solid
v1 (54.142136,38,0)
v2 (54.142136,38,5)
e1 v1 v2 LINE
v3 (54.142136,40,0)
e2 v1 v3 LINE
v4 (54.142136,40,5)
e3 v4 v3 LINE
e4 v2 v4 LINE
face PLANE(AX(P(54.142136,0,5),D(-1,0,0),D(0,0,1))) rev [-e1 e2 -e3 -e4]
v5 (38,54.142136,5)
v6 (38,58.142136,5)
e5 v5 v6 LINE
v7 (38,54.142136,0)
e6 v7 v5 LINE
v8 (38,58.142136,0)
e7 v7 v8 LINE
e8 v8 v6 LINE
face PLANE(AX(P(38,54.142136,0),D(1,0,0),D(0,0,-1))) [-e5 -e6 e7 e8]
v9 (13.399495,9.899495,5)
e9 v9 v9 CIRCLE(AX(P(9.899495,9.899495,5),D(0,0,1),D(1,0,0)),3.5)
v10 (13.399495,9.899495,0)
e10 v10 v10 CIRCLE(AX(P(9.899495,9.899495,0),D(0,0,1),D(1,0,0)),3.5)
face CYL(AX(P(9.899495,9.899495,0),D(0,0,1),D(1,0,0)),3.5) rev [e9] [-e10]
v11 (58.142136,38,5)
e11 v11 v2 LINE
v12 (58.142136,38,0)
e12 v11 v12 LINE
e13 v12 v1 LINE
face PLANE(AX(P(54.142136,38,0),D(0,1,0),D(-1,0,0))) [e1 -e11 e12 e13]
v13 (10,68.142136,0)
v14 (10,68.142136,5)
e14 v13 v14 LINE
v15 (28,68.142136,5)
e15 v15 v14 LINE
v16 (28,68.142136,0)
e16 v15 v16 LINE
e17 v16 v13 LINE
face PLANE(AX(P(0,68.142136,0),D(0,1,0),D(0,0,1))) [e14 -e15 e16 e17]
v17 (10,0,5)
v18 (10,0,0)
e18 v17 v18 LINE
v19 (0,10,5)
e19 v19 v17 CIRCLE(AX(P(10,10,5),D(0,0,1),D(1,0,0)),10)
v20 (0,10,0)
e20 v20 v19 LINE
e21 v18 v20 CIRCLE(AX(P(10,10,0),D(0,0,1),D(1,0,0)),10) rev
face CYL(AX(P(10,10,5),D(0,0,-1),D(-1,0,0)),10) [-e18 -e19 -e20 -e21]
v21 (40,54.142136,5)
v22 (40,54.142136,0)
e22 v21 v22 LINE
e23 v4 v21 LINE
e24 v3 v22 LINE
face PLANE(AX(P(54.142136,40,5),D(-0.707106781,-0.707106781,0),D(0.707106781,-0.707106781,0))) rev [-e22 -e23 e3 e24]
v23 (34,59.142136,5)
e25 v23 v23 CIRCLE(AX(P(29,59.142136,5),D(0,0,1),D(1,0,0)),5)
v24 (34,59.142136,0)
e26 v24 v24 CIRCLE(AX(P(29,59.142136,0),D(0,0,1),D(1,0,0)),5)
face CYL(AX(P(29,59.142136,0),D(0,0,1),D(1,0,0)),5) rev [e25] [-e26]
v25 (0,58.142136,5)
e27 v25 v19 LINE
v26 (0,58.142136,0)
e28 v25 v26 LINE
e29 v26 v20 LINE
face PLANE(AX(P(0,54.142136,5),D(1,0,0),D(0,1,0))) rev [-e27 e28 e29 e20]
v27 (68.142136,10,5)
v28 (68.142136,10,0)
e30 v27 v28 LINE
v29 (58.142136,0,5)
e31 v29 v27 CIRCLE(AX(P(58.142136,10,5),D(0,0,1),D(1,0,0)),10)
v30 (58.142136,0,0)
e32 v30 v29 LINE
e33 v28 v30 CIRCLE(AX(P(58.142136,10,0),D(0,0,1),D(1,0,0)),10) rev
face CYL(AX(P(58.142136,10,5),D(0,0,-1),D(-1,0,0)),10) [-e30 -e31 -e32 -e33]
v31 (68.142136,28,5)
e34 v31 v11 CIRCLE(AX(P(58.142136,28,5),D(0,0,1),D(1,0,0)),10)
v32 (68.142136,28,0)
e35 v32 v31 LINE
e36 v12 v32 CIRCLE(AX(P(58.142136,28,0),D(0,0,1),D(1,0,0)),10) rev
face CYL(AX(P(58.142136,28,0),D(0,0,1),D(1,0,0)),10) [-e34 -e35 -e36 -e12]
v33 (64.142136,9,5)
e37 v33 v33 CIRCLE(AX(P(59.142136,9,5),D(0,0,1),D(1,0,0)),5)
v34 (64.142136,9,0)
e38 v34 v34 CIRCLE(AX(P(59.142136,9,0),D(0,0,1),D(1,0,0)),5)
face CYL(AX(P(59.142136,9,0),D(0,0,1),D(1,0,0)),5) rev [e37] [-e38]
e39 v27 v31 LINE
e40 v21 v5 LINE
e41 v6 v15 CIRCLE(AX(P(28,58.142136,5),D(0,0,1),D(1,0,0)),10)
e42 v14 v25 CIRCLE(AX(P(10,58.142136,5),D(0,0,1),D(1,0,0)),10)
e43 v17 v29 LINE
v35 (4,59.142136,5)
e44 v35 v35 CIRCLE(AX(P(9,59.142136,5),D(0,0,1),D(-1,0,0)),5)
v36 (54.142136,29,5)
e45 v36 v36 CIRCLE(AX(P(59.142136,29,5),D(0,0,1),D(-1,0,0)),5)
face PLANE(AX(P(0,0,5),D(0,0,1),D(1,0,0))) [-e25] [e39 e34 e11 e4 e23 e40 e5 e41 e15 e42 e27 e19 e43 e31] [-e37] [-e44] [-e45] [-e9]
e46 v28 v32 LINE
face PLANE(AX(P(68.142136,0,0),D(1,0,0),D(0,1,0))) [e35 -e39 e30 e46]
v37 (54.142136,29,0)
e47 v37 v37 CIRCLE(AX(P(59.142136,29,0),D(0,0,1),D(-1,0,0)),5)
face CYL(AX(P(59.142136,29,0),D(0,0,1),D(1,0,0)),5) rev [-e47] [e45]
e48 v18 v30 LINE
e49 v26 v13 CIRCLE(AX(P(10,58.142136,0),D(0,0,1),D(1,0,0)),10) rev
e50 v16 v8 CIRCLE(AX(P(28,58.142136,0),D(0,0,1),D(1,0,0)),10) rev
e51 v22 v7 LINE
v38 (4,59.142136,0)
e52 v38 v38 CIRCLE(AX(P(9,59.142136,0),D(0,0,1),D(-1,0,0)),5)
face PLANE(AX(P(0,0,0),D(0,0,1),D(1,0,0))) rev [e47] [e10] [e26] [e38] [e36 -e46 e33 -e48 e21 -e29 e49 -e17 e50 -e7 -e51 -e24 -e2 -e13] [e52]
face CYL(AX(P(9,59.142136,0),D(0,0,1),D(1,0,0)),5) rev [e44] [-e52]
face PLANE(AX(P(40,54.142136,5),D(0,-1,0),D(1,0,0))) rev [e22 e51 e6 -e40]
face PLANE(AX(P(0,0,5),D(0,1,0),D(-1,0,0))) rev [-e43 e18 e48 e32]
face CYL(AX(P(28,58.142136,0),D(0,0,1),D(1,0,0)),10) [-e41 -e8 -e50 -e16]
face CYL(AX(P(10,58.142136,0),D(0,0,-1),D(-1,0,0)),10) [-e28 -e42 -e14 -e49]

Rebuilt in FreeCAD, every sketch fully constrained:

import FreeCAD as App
import Part
import Sketcher

V = App.Vector
Q = App.Units.Quantity


def edges_at(feature, points):
    """Names of the edges that pass closest to the given points."""
    edges = feature.Shape.Edges
    near = lambda p: min(range(len(edges)), key=lambda i: edges[i].distToShape(Part.Vertex(*p))[0])
    return sorted({f"Edge{near(p) + 1}" for p in points})

doc = App.newDocument("Part")
params = doc.addObject("Spreadsheet::Sheet", "Params")
for row, (alias, value) in enumerate([
    ("sketch1_width", "40 mm"),
    ("sketch1_length", "20 mm"),
    ("pad1_length", "5 mm"),
    ("sketch2_width", "38 mm"),
    ("sketch2_width2", "14 mm"),
    ("pad2_length", "5 mm"),
    ("sketch3_diameter", "10 mm"),
    ("sketch3_diameter2", "7 mm"),
    ("fillet_radius", "10 mm"),
], start=1):
    params.set(f"A{row}", alias)
    params.set(f"B{row}", "=" + value)
    params.setAlias(f"B{row}", alias)

body = doc.addObject("PartDesign::Body", "Body")

# Sketch on XY plane
sketch1 = body.newObject("Sketcher::SketchObject", "Sketch")
sketch1.AttachmentSupport = (doc.getObject("XY_Plane"), [""])
sketch1.MapMode = "FlatFace"
sketch1.addGeometry([
    Part.LineSegment(V(0, 0, 0), V(54.142136, 0, 0)),  # 0
    Part.LineSegment(V(54.142136, 0, 0), V(54.142136, 40, 0)),  # 1
    Part.LineSegment(V(54.142136, 40, 0), V(40, 54.142136, 0)),  # 2
    Part.LineSegment(V(40, 54.142136, 0), V(0, 54.142136, 0)),  # 3
    Part.LineSegment(V(0, 54.142136, 0), V(0, 0, 0)),  # 4
], False)
sketch1.addConstraint([
    Sketcher.Constraint("Coincident", 0, 2, 1, 1),
    Sketcher.Constraint("Coincident", 1, 2, 2, 1),
    Sketcher.Constraint("Coincident", 2, 2, 3, 1),
    Sketcher.Constraint("Coincident", 3, 2, 4, 1),
    Sketcher.Constraint("Coincident", 4, 2, 0, 1),
    Sketcher.Constraint("Horizontal", 0),
    Sketcher.Constraint("Vertical", 1),
    Sketcher.Constraint("Horizontal", 3),
    Sketcher.Constraint("Vertical", 4),
    Sketcher.Constraint("Coincident", 4, 2, -1, 1),
    Sketcher.Constraint("Equal", 3, 1),
    Sketcher.Constraint("Equal", 0, 4),
    Sketcher.Constraint("DistanceX", 3, 2, 3, 1, Q("40 mm")),
    Sketcher.Constraint("Distance", 2, Q("20 mm")),
])
sketch1.setExpression("Constraints[12]", "Params.sketch1_width")
sketch1.setExpression("Constraints[13]", "Params.sketch1_length")
pad1 = body.newObject("PartDesign::Pad", "Pad")
pad1.Profile = sketch1
pad1.setExpression("Length", "Params.pad1_length")

# Sketch on XY plane
sketch2 = body.newObject("Sketcher::SketchObject", "Sketch001")
sketch2.AttachmentSupport = (doc.getObject("XY_Plane"), [""])
sketch2.MapMode = "FlatFace"
sketch2.AttachmentOffset = App.Placement(V(0, 0, 5), App.Rotation())
sketch2.addGeometry([
    Part.LineSegment(V(0, 68.142136, 0), V(0, 54.142136, 0)),  # 0
    Part.LineSegment(V(0, 54.142136, 0), V(38, 54.142136, 0)),  # 1
    Part.LineSegment(V(38, 54.142136, 0), V(38, 68.142136, 0)),  # 2
    Part.LineSegment(V(38, 68.142136, 0), V(0, 68.142136, 0)),  # 3
    Part.LineSegment(V(54.142136, 38, 0), V(54.142136, 0, 0)),  # 4
    Part.LineSegment(V(54.142136, 0, 0), V(68.142136, 0, 0)),  # 5
    Part.LineSegment(V(68.142136, 0, 0), V(68.142136, 38, 0)),  # 6
    Part.LineSegment(V(68.142136, 38, 0), V(54.142136, 38, 0)),  # 7
], False)
sketch2.addConstraint([
    Sketcher.Constraint("Coincident", 0, 2, 1, 1),
    Sketcher.Constraint("Coincident", 1, 2, 2, 1),
    Sketcher.Constraint("Coincident", 2, 2, 3, 1),
    Sketcher.Constraint("Coincident", 3, 2, 0, 1),
    Sketcher.Constraint("Coincident", 4, 2, 5, 1),
    Sketcher.Constraint("Coincident", 5, 2, 6, 1),
    Sketcher.Constraint("Coincident", 6, 2, 7, 1),
    Sketcher.Constraint("Coincident", 7, 2, 4, 1),
    Sketcher.Constraint("Vertical", 0),
    Sketcher.Constraint("Horizontal", 1),
    Sketcher.Constraint("Vertical", 2),
    Sketcher.Constraint("Horizontal", 3),
    Sketcher.Constraint("Vertical", 4),
    Sketcher.Constraint("Horizontal", 5),
    Sketcher.Constraint("Vertical", 6),
    Sketcher.Constraint("Horizontal", 7),
    Sketcher.Constraint("PointOnObject", 0, 2, -2),
    Sketcher.Constraint("PointOnObject", 4, 2, -1),
    Sketcher.Constraint("Equal", 7, 0),
    Sketcher.Constraint("Equal", 3, 4),
    Sketcher.Constraint("DistanceX", 1, 1, 1, 2, Q("38 mm")),
    Sketcher.Constraint("DistanceX", 5, 1, 5, 2, Q("14 mm")),
    Sketcher.Constraint("DistanceY", -1, 1, 0, 2, Q("54.142136 mm")),
    Sketcher.Constraint("DistanceX", -1, 1, 4, 2, Q("54.142136 mm")),
])
sketch2.setExpression("Constraints[20]", "Params.sketch2_width")
sketch2.setExpression("Constraints[21]", "Params.sketch2_width2")
pad2 = body.newObject("PartDesign::Pad", "Pad001")
pad2.Profile = sketch2
pad2.setExpression("Length", "Params.pad2_length")
pad2.Reversed = True

# Sketch on XY plane
sketch3 = body.newObject("Sketcher::SketchObject", "Sketch002")
sketch3.AttachmentSupport = (doc.getObject("XY_Plane"), [""])
sketch3.MapMode = "FlatFace"
sketch3.AttachmentOffset = App.Placement(V(0, 0, 5), App.Rotation())
sketch3.addGeometry([
    Part.Circle(V(29, 59.142136, 0), V(0, 0, 1), 5),  # 0
    Part.Circle(V(9, 59.142136, 0), V(0, 0, 1), 5),  # 1
    Part.Circle(V(59.142136, 9, 0), V(0, 0, 1), 5),  # 2
    Part.Circle(V(59.142136, 29, 0), V(0, 0, 1), 5),  # 3
    Part.Circle(V(9.899495, 9.899495, 0), V(0, 0, 1), 3.5),  # 4
], False)
sketch3.addConstraint([
    Sketcher.Constraint("Equal", 0, 1),
    Sketcher.Constraint("Equal", 1, 2),
    Sketcher.Constraint("Equal", 2, 3),
    Sketcher.Constraint("Horizontal", 0, 3, 1, 3),
    Sketcher.Constraint("Vertical", 2, 3, 3, 3),
    Sketcher.Constraint("Diameter", 0, Q("10 mm")),
    Sketcher.Constraint("Diameter", 4, Q("7 mm")),
    Sketcher.Constraint("DistanceX", -1, 1, 0, 3, Q("29 mm")),
    Sketcher.Constraint("DistanceX", -1, 1, 1, 3, Q("9 mm")),
    Sketcher.Constraint("DistanceY", -1, 1, 2, 3, Q("9 mm")),
    Sketcher.Constraint("DistanceY", -1, 1, 3, 3, Q("29 mm")),
    Sketcher.Constraint("DistanceY", 4, 3, 1, 3, Q("49.242641 mm")),
    Sketcher.Constraint("DistanceX", 4, 3, 2, 3, Q("49.242641 mm")),
    Sketcher.Constraint("DistanceY", -1, 1, 0, 3, Q("59.142136 mm")),
    Sketcher.Constraint("DistanceX", -1, 1, 2, 3, Q("59.142136 mm")),
])
sketch3.setExpression("Constraints[5]", "Params.sketch3_diameter")
sketch3.setExpression("Constraints[6]", "Params.sketch3_diameter2")
pocket1 = body.newObject("PartDesign::Pocket", "Pocket")
pocket1.Profile = sketch3
pocket1.Type = "ThroughAll"
doc.recompute()

fillet = body.newObject("PartDesign::Fillet", "Fillet")
fillet.Base = (pocket1, edges_at(pocket1, [
    (0, 68.142, 2.5),
    (38, 68.142, 2.5),
    (68.142, 38, 2.5),
    (68.142, 0, 2.5),
    (0, 0, 2.5),
]))
fillet.setExpression("Radius", "Params.fillet_radius")

doc.recompute()
